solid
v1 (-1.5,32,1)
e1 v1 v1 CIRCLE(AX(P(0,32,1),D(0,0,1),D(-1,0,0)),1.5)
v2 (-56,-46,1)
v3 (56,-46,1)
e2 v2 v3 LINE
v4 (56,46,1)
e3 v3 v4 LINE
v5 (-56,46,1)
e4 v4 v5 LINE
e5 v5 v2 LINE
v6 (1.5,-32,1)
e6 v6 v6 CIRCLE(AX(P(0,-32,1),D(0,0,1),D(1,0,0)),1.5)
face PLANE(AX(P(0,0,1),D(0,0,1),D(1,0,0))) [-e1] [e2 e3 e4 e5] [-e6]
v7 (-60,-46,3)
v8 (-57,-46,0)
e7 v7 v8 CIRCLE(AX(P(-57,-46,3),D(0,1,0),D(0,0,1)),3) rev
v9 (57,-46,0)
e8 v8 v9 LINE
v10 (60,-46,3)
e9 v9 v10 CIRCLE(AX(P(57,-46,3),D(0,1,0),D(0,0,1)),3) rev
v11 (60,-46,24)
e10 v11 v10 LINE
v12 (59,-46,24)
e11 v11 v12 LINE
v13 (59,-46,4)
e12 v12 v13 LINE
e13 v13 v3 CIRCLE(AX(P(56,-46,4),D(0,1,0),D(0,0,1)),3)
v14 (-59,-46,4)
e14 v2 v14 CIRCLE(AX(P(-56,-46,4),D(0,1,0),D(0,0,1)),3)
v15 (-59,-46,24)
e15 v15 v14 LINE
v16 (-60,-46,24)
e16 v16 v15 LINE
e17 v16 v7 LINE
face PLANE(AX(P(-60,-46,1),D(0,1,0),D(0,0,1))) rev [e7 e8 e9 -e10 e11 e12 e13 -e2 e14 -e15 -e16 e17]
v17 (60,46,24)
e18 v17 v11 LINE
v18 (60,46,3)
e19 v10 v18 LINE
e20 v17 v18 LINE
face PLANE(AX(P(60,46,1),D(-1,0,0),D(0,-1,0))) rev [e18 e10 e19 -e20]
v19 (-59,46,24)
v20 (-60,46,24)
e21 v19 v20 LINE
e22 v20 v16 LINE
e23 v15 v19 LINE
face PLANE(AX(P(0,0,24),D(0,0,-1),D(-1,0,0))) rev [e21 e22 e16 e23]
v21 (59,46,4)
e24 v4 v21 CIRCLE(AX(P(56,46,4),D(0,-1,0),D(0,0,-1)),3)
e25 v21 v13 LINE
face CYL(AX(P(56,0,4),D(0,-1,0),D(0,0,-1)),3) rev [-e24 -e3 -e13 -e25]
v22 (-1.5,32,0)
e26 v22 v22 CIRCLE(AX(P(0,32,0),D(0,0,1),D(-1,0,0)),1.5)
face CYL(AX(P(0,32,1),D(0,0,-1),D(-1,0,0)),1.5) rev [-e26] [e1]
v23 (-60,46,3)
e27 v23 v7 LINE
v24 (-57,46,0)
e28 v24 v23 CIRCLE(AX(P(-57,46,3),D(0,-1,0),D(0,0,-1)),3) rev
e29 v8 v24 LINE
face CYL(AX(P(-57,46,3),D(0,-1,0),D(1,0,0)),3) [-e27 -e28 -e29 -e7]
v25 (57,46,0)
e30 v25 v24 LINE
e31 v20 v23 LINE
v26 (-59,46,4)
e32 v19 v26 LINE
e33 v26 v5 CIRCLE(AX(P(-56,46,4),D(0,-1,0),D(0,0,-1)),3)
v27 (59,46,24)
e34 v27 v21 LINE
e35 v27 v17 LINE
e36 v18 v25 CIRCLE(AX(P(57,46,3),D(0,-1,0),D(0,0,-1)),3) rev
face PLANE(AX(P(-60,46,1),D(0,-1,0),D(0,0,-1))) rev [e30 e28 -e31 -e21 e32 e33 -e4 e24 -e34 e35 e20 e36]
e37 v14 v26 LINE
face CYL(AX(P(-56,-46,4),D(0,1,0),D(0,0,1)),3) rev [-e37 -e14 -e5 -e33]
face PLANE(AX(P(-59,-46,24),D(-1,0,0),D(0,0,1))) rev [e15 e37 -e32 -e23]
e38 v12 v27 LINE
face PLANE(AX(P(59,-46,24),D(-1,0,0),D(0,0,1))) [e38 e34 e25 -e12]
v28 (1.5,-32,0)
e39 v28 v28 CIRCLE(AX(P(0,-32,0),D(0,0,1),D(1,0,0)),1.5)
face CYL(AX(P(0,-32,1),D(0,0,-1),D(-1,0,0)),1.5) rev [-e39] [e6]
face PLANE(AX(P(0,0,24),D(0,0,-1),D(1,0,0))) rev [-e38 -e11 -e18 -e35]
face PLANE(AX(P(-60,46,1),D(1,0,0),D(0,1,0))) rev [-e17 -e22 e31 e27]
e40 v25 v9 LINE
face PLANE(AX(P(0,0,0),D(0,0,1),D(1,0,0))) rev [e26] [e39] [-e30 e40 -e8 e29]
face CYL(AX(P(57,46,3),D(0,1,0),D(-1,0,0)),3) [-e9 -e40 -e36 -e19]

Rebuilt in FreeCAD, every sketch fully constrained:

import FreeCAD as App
import Part
import Sketcher


def edges_at(feature, points):
    """Names of the edges that pass closest to the given points."""
    edges = feature.Shape.Edges
    near = lambda p: min(range(len(edges)), key=lambda i: edges[i].distToShape(Part.Vertex(*p))[0])
    return sorted({f"Edge{near(p) + 1}" for p in points})


def add_polygon(sketch, points):
    """Adds a closed chain of lines whose ends are joined by coincident constraints."""
    first, n = sketch.GeometryCount, len(points)
    for a, b in zip(points, points[1:] + points[:1]):
        sketch.addGeometry(Part.LineSegment(App.Vector(*a, 0), App.Vector(*b, 0)), False)
    for i in range(n):
        sketch.addConstraint(Sketcher.Constraint("Coincident", first + i, 2, first + (i + 1) % n, 1))

doc = App.newDocument("Part")
body = doc.addObject("PartDesign::Body", "Body")

# Sketch on XY plane
sketch1 = body.newObject("Sketcher::SketchObject", "Sketch")
sketch1.AttachmentSupport = (doc.getObject("XY_Plane"), [""])
sketch1.MapMode = "FlatFace"
add_polygon(sketch1, [(-60, 46), (-60, -46), (60, -46), (60, 46)])  # lines 0-3
sketch1.addGeometry(Part.Circle(App.Vector(0, -32, 0), App.Vector(0, 0, 1), 1.5), False)  # 4
sketch1.addGeometry(Part.Circle(App.Vector(0, 32, 0), App.Vector(0, 0, 1), 1.5), False)  # 5
sketch1.addConstraint([
    Sketcher.Constraint("Vertical", 0),
    Sketcher.Constraint("Horizontal", 1),
    Sketcher.Constraint("Vertical", 2),
    Sketcher.Constraint("Horizontal", 3),
    Sketcher.Constraint("Equal", 4, 5),
    Sketcher.Constraint("Symmetric", 4, 3, 5, 3, -1, 1),
    Sketcher.Constraint("Symmetric", 0, 2, 2, 2, -1, 1),
    Sketcher.Constraint("PointOnObject", 4, 3, -2),
    Sketcher.Constraint("Diameter", 4, 3.0),
    Sketcher.Constraint("DistanceX", 1, 1, 1, 2, 120.0),
    Sketcher.Constraint("DistanceY", 0, 2, 0, 1, 92.0),
    Sketcher.Constraint("DistanceY", 4, 3, -1, 1, 32.0),
])
pad1 = body.newObject("PartDesign::Pad", "Pad")
pad1.Profile = sketch1
pad1.Length = 1

# Sketch on XY plane
sketch2 = body.newObject("Sketcher::SketchObject", "Sketch001")
sketch2.AttachmentSupport = (doc.getObject("XY_Plane"), [""])
sketch2.MapMode = "FlatFace"
sketch2.AttachmentOffset = App.Placement(App.Vector(0, 0, 1), App.Rotation())
add_polygon(sketch2, [(-60, 46), (-60, -46), (-59, -46), (-59, 46)])  # lines 0-3
sketch2.addConstraint([
    Sketcher.Constraint("Vertical", 0),
    Sketcher.Constraint("Horizontal", 1),
    Sketcher.Constraint("Vertical", 2),
    Sketcher.Constraint("Horizontal", 3),
    Sketcher.Constraint("DistanceX", 1, 1, 1, 2, 1.0),
    Sketcher.Constraint("DistanceY", 0, 2, 0, 1, 92.0),
    Sketcher.Constraint("DistanceX", 0, 2, -1, 1, 60.0),
    Sketcher.Constraint("DistanceY", 0, 2, -1, 1, 46.0),
])
pad2 = body.newObject("PartDesign::Pad", "Pad001")
pad2.Profile = sketch2
pad2.Length = 23
doc.recompute()

fillet = body.newObject("PartDesign::Fillet", "Fillet")
fillet.Base = (pad2, edges_at(pad2, [(-60, 0, 0)]))
fillet.Radius = 3
doc.recompute()

fillet2 = body.newObject("PartDesign::Fillet", "Fillet001")
fillet2.Base = (fillet, edges_at(fillet, [(-59, 0, 1)]))
fillet2.Radius = 3
doc.recompute()

mirrored = body.newObject("PartDesign::Mirrored", "Mirrored")
mirrored.Originals = [pad2]
mirrored.MirrorPlane = (doc.getObject("YZ_Plane"), [""])
body.Tip = mirrored
doc.recompute()

fillet3 = body.newObject("PartDesign::Fillet", "Fillet002")
fillet3.Base = (mirrored, edges_at(mirrored, [(59, 0, 1), (60, 0, 0)]))
fillet3.Radius = 3

doc.recompute()
